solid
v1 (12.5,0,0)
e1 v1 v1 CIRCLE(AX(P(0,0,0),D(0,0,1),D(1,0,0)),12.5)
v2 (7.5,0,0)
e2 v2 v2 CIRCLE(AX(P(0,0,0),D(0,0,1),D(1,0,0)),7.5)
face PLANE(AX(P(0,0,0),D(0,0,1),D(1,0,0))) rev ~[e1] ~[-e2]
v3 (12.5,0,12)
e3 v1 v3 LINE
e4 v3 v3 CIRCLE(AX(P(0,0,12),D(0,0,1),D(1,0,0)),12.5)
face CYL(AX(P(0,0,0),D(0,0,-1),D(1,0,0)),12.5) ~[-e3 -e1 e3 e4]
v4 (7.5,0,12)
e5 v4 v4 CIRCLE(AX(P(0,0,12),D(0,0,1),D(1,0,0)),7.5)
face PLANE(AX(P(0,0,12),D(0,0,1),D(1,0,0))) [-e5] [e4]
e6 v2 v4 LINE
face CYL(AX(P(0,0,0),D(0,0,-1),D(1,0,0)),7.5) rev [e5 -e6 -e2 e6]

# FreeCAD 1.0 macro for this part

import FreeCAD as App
import Part
import Sketcher

V = App.Vector

doc = App.newDocument("Part")
params = doc.addObject("Spreadsheet::Sheet", "Params")
for row, (alias, value) in enumerate([
    ("sketch1_diameter", "25 mm"),
    ("sketch1_diameter2", "15 mm"),
    ("pad1_length", "12 mm"),
], start=1):
    params.set(f"A{row}", alias)
    params.set(f"B{row}", "=" + value)
    params.setAlias(f"B{row}", alias)

body = doc.addObject("PartDesign::Body", "Body")

# Sketch on XY plane
sketch1 = body.newObject("Sketcher::SketchObject", "Sketch")
sketch1.AttachmentSupport = (doc.getObject("XY_Plane"), [""])
sketch1.MapMode = "FlatFace"
sketch1.addGeometry([
    Part.Circle(V(0, 0, 0), V(0, 0, 1), 12),
    Part.Circle(V(0, 0, 0), V(0, 0, 1), 8),
], False)
sketch1.addConstraint([
    Sketcher.Constraint("Coincident", 0, 3, -1, 1),
    Sketcher.Constraint("Coincident", 1, 3, -1, 1),
    Sketcher.Constraint("Diameter", 0, 25.0),
    Sketcher.Constraint("Diameter", 1, 15.0),
])
sketch1.setExpression("Constraints[2]", "Params.sketch1_diameter")
sketch1.setExpression("Constraints[3]", "Params.sketch1_diameter2")
pad1 = body.newObject("PartDesign::Pad", "Pad")
pad1.Profile = sketch1
pad1.setExpression("Length", "Params.pad1_length")

doc.recompute()
